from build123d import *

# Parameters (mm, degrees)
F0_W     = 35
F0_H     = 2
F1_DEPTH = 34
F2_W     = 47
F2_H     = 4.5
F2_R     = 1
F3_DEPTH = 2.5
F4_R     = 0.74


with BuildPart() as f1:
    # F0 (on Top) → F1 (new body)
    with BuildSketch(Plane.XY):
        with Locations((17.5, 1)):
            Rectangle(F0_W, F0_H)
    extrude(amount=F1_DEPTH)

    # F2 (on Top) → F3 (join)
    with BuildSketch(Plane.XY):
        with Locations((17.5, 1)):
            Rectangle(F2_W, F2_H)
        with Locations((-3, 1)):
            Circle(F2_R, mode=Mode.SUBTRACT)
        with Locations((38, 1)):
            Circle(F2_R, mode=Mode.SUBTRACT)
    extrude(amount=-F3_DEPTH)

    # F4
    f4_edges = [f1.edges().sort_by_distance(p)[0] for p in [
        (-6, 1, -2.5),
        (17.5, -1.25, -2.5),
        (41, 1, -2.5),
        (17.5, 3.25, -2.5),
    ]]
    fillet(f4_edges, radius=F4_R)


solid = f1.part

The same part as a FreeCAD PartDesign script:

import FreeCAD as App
import Part
import Sketcher


def edges_at(feature, points):
    """Names of the edges that pass closest to the given points."""
    edges = feature.Shape.Edges
    near = lambda p: min(range(len(edges)), key=lambda i: edges[i].distToShape(Part.Vertex(*p))[0])
    return sorted({f"Edge{near(p) + 1}" for p in points})


def add_polygon(sketch, points):
    """Adds a closed chain of lines whose ends are joined by coincident constraints."""
    first, n = sketch.GeometryCount, len(points)
    for a, b in zip(points, points[1:] + points[:1]):
        sketch.addGeometry(Part.LineSegment(App.Vector(*a, 0), App.Vector(*b, 0)), False)
    for i in range(n):
        sketch.addConstraint(Sketcher.Constraint("Coincident", first + i, 2, first + (i + 1) % n, 1))

doc = App.newDocument("Part")
body = doc.addObject("PartDesign::Body", "Body")

# Sketch on XY plane
sketch1 = doc.addObject("Sketcher::SketchObject", "Sketch")
body.addObject(sketch1)
sketch1.AttachmentSupport = (doc.XY_Plane, [""])
sketch1.MapMode = "FlatFace"
add_polygon(sketch1, [(0, 2), (0, 0), (35, 0), (35, 2)])  # lines 0-3
sketch1.addConstraint([
    Sketcher.Constraint("Vertical", 0),
    Sketcher.Constraint("Horizontal", 1),
    Sketcher.Constraint("Vertical", 2),
    Sketcher.Constraint("Horizontal", 3),
    Sketcher.Constraint("Coincident", 0, 2, -1, 1),
    Sketcher.Constraint("DistanceX", 1, 1, 1, 2, 35.0),
    Sketcher.Constraint("DistanceY", 0, 2, 0, 1, 2.0),
])
pad1 = doc.addObject("PartDesign::Pad", "Pad")
body.addObject(pad1)
pad1.Profile = sketch1
pad1.Length = 34

# Sketch on XY plane
sketch2 = doc.addObject("Sketcher::SketchObject", "Sketch001")
body.addObject(sketch2)
sketch2.AttachmentSupport = (doc.XY_Plane, [""])
sketch2.MapMode = "FlatFace"
add_polygon(sketch2, [(-6, 3.2), (-6, -1.2), (41, -1.2), (41, 3.2)])  # lines 0-3
sketch2.addGeometry(Part.Circle(App.Vector(-3, 1, 0), App.Vector(0, 0, 1), 1), False)  # 4
sketch2.addGeometry(Part.Circle(App.Vector(38, 1, 0), App.Vector(0, 0, 1), 1), False)  # 5
sketch2.addConstraint([
    Sketcher.Constraint("Vertical", 0),
    Sketcher.Constraint("Horizontal", 1),
    Sketcher.Constraint("Vertical", 2),
    Sketcher.Constraint("Horizontal", 3),
    Sketcher.Constraint("Equal", 4, 5),
    Sketcher.Constraint("Horizontal", 4, 3, 5, 3),
    Sketcher.Constraint("Diameter", 4, 2.0),
    Sketcher.Constraint("DistanceX", 1, 1, 1, 2, 47.0),
    Sketcher.Constraint("DistanceY", 0, 2, 0, 1, 4.5),
    Sketcher.Constraint("DistanceX", 4, 3, -1, 1, 3.0),
    Sketcher.Constraint("DistanceY", -1, 1, 4, 3, 1.0),
    Sketcher.Constraint("DistanceX", -1, 1, 5, 3, 38.0),
    Sketcher.Constraint("DistanceX", 0, 2, -1, 1, 6.0),
    Sketcher.Constraint("DistanceY", 0, 2, -1, 1, 1.25),
])
pad2 = doc.addObject("PartDesign::Pad", "Pad001")
body.addObject(pad2)
pad2.Profile = sketch2
pad2.Length = 2.5
pad2.Reversed = True
doc.recompute()

fillet = doc.addObject("PartDesign::Fillet", "Fillet")
body.addObject(fillet)
fillet.Base = (pad2, edges_at(pad2, [
    (-6, 1, -2.5),
    (17.5, -1.25, -2.5),
    (41, 1, -2.5),
    (17.5, 3.25, -2.5),
]))
fillet.Radius = 0.74

doc.recompute()
